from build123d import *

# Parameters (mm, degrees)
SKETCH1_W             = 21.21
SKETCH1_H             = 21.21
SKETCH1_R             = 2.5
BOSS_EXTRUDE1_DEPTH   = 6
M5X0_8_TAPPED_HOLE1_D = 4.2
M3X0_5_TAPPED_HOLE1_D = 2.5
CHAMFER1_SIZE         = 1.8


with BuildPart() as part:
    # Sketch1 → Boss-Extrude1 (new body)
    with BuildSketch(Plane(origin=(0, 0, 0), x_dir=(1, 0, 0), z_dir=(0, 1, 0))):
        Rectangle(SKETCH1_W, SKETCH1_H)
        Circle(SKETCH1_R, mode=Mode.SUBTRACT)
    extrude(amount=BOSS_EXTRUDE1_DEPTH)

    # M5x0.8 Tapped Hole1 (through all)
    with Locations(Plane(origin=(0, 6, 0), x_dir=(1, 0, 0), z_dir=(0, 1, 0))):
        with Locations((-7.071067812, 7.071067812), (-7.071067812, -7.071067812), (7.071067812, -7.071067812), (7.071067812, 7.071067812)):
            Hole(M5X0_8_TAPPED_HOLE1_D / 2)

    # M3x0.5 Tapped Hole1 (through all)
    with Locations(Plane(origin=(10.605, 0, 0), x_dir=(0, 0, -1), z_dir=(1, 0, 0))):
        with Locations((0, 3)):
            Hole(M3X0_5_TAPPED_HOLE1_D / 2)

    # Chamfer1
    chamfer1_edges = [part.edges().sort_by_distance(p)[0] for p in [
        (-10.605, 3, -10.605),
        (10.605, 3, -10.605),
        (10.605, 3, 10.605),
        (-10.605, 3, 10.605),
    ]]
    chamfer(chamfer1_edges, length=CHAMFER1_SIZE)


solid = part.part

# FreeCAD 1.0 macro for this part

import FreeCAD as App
import Part
import Sketcher
from FreeCAD import Vector
Q = App.Units.Quantity


def edges_at(feature, points):
    """Names of the edges that pass closest to the given points."""
    edges = feature.Shape.Edges
    near = lambda p: min(range(len(edges)), key=lambda i: edges[i].distToShape(Part.Vertex(*p))[0])
    return sorted({f"Edge{near(p) + 1}" for p in points})

doc = App.newDocument("Part")
body = doc.addObject("PartDesign::Body", "Body")

sketch1 = body.newObject("Sketcher::SketchObject", "Sketch")
sketch1.AttachmentSupport = (doc.getObject("XZ_Plane"), [""])
sketch1.MapMode = "FlatFace"
sketch1.addGeometry([
    Part.LineSegment(Vector(-10.6, -10.6, 0), Vector(-10.6, 10.6, 0)),
    Part.LineSegment(Vector(-10.6, 10.6, 0), Vector(10.6, 10.6, 0)),
    Part.LineSegment(Vector(10.6, 10.6, 0), Vector(10.6, -10.6, 0)),
    Part.LineSegment(Vector(10.6, -10.6, 0), Vector(-10.6, -10.6, 0)),
    Part.Circle(Vector(0, 0, 0), Vector(0, 0, 1), 2.5),
], False)
sketch1.addConstraint([
    Sketcher.Constraint("Coincident", 0, 2, 1, 1),
    Sketcher.Constraint("Coincident", 1, 2, 2, 1),
    Sketcher.Constraint("Coincident", 2, 2, 3, 1),
    Sketcher.Constraint("Coincident", 3, 2, 0, 1),
    Sketcher.Constraint("Vertical", 0),
    Sketcher.Constraint("Horizontal", 1),
    Sketcher.Constraint("Vertical", 2),
    Sketcher.Constraint("Horizontal", 3),
    Sketcher.Constraint("Coincident", 4, 3, -1, 1),
    Sketcher.Constraint("Symmetric", 0, 2, 2, 2, -1, 1),
    Sketcher.Constraint("Equal", 3, 0),
    Sketcher.Constraint("Diameter", 4, Q("5 mm")),
    Sketcher.Constraint("DistanceX", 1, 1, 1, 2, Q("21.21 mm")),
])
pad1 = body.newObject("PartDesign::Pad", "Pad")
pad1.Profile = sketch1
pad1.Length = 6
pad1.Reversed = True

sketch2 = body.newObject("Sketcher::SketchObject", "Sketch001")
sketch2.AttachmentSupport = (doc.getObject("XZ_Plane"), [""])
sketch2.MapMode = "FlatFace"
sketch2.AttachmentOffset = App.Placement(Vector(0, 0, -6), App.Rotation())
sketch2.addGeometry([
    Part.Circle(Vector(-7.1, -7.1, 0), Vector(0, 0, 1), 2.1),
    Part.Circle(Vector(-7.1, 7.1, 0), Vector(0, 0, 1), 2.1),
    Part.Circle(Vector(7.1, 7.1, 0), Vector(0, 0, 1), 2.1),
    Part.Circle(Vector(7.1, -7.1, 0), Vector(0, 0, 1), 2.1),
], False)
sketch2.addConstraint([
    Sketcher.Constraint("Equal", 0, 1),
    Sketcher.Constraint("Equal", 1, 2),
    Sketcher.Constraint("Equal", 2, 3),
    Sketcher.Constraint("Symmetric", 0, 3, 2, 3, -1, 1),
    Sketcher.Constraint("Symmetric", 1, 3, 3, 3, -1, 1),
    Sketcher.Constraint("Symmetric", 1, 3, 2, 3, -2),
    Sketcher.Constraint("Diameter", 0, Q("4.2 mm")),
    Sketcher.Constraint("DistanceX", 0, 3, -1, 1, Q("7.071068 mm")),
    Sketcher.Constraint("DistanceY", 0, 3, -1, 1, Q("7.071068 mm")),
])
doc.recompute()
hole = body.newObject("PartDesign::Hole", "Hole")
hole.Profile = sketch2
hole.ThreadType = "None"
hole.Diameter = 4.2
hole.DepthType = "ThroughAll"
hole.Reversed = True

sketch3 = body.newObject("Sketcher::SketchObject", "Sketch002")
sketch3.AttachmentSupport = (doc.getObject("YZ_Plane"), [""])
sketch3.MapMode = "FlatFace"
sketch3.AttachmentOffset = App.Placement(Vector(0, 0, 10.605), App.Rotation())
sketch3.addGeometry(Part.Circle(Vector(3, 0, 0), Vector(0, 0, 1), 1.2), False)
sketch3.addConstraint([
    Sketcher.Constraint("PointOnObject", 0, 3, -1),
    Sketcher.Constraint("Diameter", 0, Q("2.5 mm")),
    Sketcher.Constraint("DistanceX", -1, 1, 0, 3, Q("3 mm")),
])
doc.recompute()
hole2 = body.newObject("PartDesign::Hole", "Hole001")
hole2.Profile = sketch3
hole2.ThreadType = "None"
hole2.Diameter = 2.5
hole2.DepthType = "ThroughAll"
doc.recompute()

chamfer = body.newObject("PartDesign::Chamfer", "Chamfer")
chamfer.Base = (hole2, edges_at(hole2, [
    (-10.605, 3, -10.605),
    (10.605, 3, -10.605),
    (10.605, 3, 10.605),
    (-10.605, 3, 10.605),
]))
chamfer.Size = 1.8

doc.recompute()
